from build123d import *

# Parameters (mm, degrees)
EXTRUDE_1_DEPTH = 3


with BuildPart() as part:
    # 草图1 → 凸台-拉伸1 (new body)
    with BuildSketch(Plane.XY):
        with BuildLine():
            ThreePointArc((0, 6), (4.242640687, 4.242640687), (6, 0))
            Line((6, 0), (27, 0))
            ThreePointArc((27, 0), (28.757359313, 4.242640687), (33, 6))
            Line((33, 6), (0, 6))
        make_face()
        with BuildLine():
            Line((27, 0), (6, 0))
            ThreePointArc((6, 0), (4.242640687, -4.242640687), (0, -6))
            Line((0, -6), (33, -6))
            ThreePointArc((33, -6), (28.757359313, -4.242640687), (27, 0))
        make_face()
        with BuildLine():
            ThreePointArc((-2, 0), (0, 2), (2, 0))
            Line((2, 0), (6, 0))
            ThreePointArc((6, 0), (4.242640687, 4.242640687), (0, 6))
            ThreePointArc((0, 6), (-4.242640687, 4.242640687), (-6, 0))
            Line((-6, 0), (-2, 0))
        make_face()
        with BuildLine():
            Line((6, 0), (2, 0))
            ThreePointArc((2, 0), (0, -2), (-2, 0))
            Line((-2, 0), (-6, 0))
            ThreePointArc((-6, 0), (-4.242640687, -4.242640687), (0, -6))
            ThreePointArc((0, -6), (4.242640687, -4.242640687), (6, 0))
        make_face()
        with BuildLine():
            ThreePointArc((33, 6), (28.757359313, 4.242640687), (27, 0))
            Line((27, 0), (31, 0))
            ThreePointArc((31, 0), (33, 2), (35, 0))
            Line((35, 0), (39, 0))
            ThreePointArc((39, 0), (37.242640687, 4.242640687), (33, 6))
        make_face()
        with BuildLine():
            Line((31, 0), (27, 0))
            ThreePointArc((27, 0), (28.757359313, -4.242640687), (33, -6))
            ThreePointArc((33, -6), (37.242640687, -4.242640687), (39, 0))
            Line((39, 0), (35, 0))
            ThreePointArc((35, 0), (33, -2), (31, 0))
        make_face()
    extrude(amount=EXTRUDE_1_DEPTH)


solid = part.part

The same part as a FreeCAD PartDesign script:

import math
import FreeCAD as App
import Part
import Sketcher
from FreeCAD import Vector
Q = App.Units.Quantity

doc = App.newDocument("Part")
body = doc.addObject("PartDesign::Body", "Body")

# Sketch on XY plane
sketch1 = body.newObject("Sketcher::SketchObject", "Sketch")
sketch1.AttachmentSupport = (doc.getObject("XY_Plane"), [""])
sketch1.MapMode = "FlatFace"
sketch1.addGeometry(Part.LineSegment(Vector(33, 6, 0), Vector(0, 6, 0)), False)
sketch1.addGeometry(Part.ArcOfCircle(Part.Circle(Vector(0, 0, 0), Vector(0, 0, 1), 6), math.radians(90), math.radians(180)), False)
sketch1.addGeometry(Part.ArcOfCircle(Part.Circle(Vector(0, 0, 0), Vector(0, 0, 1), 6), math.radians(180), math.radians(270)), False)
sketch1.addGeometry(Part.LineSegment(Vector(0, -6, 0), Vector(33, -6, 0)), False)
sketch1.addGeometry(Part.ArcOfCircle(Part.Circle(Vector(33, 0, 0), Vector(0, 0, 1), 6), math.radians(-90), math.radians(0)), False)
sketch1.addGeometry(Part.ArcOfCircle(Part.Circle(Vector(33, 0, 0), Vector(0, 0, 1), 6), math.radians(0), math.radians(90)), False)
sketch1.addGeometry(Part.Circle(Vector(33, 0, 0), Vector(0, 0, 1), 2), False)
sketch1.addGeometry(Part.Circle(Vector(0, 0, 0), Vector(0, 0, 1), 2), False)
sketch1.addConstraint(Sketcher.Constraint("Tangent", 0, 2, 1, 1))
sketch1.addConstraint(Sketcher.Constraint("Tangent", 1, 2, 2, 1))
sketch1.addConstraint(Sketcher.Constraint("Tangent", 2, 2, 3, 1))
sketch1.addConstraint(Sketcher.Constraint("Tangent", 3, 2, 4, 1))
sketch1.addConstraint(Sketcher.Constraint("Tangent", 4, 2, 5, 1))
sketch1.addConstraint(Sketcher.Constraint("Tangent", 5, 2, 0, 1))
sketch1.addConstraint(Sketcher.Constraint("Horizontal", 0))
sketch1.addConstraint(Sketcher.Constraint("Horizontal", 3))
sketch1.addConstraint(Sketcher.Constraint("Coincident", 1, 3, -1, 1))
sketch1.addConstraint(Sketcher.Constraint("Coincident", 7, 3, -1, 1))
sketch1.addConstraint(Sketcher.Constraint("Coincident", 6, 3, 4, 3))
sketch1.addConstraint(Sketcher.Constraint("Equal", 1, 2))
sketch1.addConstraint(Sketcher.Constraint("Equal", 2, 4))
sketch1.addConstraint(Sketcher.Constraint("Equal", 6, 7))
sketch1.addConstraint(Sketcher.Constraint("PointOnObject", 1, 2, -1))
sketch1.addConstraint(Sketcher.Constraint("PointOnObject", 4, 2, -1))
sketch1.addConstraint(Sketcher.Constraint("Diameter", 6, Q("4 mm")))
sketch1.addConstraint(Sketcher.Constraint("Radius", 1, Q("6 mm")))
sketch1.addConstraint(Sketcher.Constraint("DistanceX", 0, 2, 0, 1, Q("33 mm")))
pad1 = body.newObject("PartDesign::Pad", "Pad")
pad1.Profile = sketch1
pad1.Length = 3

doc.recompute()
